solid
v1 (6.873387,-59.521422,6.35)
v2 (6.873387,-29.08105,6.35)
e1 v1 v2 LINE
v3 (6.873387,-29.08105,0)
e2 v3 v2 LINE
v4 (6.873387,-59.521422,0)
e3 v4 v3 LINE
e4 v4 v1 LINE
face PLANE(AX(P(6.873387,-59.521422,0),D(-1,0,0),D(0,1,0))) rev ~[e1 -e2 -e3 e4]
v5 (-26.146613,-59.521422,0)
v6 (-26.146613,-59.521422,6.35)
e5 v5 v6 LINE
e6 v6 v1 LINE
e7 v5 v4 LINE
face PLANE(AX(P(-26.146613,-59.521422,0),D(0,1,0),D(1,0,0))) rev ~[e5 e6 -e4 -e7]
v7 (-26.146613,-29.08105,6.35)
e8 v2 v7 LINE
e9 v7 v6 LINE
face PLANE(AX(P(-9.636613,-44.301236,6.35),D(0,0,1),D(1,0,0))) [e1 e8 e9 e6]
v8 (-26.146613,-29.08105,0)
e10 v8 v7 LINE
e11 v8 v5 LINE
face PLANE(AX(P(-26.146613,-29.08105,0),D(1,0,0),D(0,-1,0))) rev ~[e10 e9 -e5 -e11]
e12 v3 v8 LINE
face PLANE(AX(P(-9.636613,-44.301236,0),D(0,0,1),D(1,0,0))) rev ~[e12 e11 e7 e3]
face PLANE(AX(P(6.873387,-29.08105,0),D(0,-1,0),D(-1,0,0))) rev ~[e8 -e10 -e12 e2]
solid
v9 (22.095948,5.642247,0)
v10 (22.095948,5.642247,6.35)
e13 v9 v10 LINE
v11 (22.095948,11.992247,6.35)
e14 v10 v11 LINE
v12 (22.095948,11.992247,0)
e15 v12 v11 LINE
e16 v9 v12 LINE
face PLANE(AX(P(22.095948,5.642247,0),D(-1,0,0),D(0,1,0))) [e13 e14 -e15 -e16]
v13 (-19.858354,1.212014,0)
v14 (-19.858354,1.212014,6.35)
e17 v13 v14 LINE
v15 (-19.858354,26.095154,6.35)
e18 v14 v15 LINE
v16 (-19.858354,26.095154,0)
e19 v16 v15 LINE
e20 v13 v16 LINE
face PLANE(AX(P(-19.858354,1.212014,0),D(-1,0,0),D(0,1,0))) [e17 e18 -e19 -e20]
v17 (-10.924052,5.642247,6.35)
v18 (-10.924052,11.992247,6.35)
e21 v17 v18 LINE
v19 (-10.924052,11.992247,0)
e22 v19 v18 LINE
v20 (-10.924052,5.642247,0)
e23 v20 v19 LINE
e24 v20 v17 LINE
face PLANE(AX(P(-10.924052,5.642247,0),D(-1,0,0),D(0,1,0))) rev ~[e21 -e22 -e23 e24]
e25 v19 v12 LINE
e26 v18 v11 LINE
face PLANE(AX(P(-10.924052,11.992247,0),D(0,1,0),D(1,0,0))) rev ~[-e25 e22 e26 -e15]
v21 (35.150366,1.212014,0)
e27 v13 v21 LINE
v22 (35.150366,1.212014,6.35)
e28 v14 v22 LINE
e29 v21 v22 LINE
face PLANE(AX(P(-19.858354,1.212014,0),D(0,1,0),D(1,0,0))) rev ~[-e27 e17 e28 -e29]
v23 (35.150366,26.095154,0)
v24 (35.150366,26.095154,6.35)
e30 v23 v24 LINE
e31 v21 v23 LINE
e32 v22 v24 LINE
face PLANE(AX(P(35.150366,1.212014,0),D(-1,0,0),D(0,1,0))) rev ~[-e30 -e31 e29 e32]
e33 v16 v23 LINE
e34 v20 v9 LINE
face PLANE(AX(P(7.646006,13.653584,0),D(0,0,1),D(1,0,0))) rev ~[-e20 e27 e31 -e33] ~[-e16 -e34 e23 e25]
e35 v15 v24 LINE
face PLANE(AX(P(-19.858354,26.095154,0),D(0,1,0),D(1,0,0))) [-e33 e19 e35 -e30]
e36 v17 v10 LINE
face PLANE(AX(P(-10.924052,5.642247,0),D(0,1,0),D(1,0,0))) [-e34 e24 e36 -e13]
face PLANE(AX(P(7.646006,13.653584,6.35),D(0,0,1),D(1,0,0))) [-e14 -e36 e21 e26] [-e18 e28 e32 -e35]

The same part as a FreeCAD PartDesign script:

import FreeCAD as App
import Part
import Sketcher
Q = App.Units.Quantity


def add_polygon(sketch, points):
    """Adds a closed chain of lines whose ends are joined by coincident constraints."""
    first, n = sketch.GeometryCount, len(points)
    for a, b in zip(points, points[1:] + points[:1]):
        sketch.addGeometry(Part.LineSegment(App.Vector(*a, 0), App.Vector(*b, 0)), False)
    for i in range(n):
        sketch.addConstraint(Sketcher.Constraint("Coincident", first + i, 2, first + (i + 1) % n, 1))

doc = App.newDocument("Part")
body = doc.addObject("PartDesign::Body", "Body")
body.AllowCompound = True

# Sketch on XY plane
sketch1 = doc.addObject("Sketcher::SketchObject", "Sketch")
body.addObject(sketch1)
sketch1.AttachmentSupport = (doc.XY_Plane, [""])
sketch1.MapMode = "FlatFace"
add_polygon(sketch1, [(6.873387, -29.08105), (-26.146613, -29.08105), (-26.146613, -59.521422), (6.873387, -59.521422)])  # lines 0-3
add_polygon(sketch1, [(-19.858354, 26.095154), (-19.858354, 1.212014), (35.150366, 1.212014), (35.150366, 26.095154)])  # lines 4-7
add_polygon(sketch1, [(22.095948, 5.642247), (-10.924052, 5.642247), (-10.924052, 11.992247), (22.095948, 11.992247)])  # lines 8-11
sketch1.addConstraint([
    Sketcher.Constraint("Horizontal", 0),
    Sketcher.Constraint("Vertical", 1),
    Sketcher.Constraint("Horizontal", 2),
    Sketcher.Constraint("Vertical", 3),
    Sketcher.Constraint("Vertical", 4),
    Sketcher.Constraint("Horizontal", 5),
    Sketcher.Constraint("Vertical", 6),
    Sketcher.Constraint("Horizontal", 7),
    Sketcher.Constraint("Horizontal", 8),
    Sketcher.Constraint("Vertical", 9),
    Sketcher.Constraint("Horizontal", 10),
    Sketcher.Constraint("Vertical", 11),
    Sketcher.Constraint("Equal", 2, 8),
    Sketcher.Constraint("DistanceX", 0, 2, 0, 1, Q("1.3 in")),
    Sketcher.Constraint("DistanceY", 9, 1, 9, 2, Q("0.25 in")),
    Sketcher.Constraint("DistanceX", 5, 1, 5, 2, 55.00872),
    Sketcher.Constraint("DistanceY", 1, 2, 1, 1, 30.440372),
    Sketcher.Constraint("DistanceY", 4, 2, 4, 1, 24.88314),
    Sketcher.Constraint("DistanceX", 4, 2, 8, 2, 8.934302),
    Sketcher.Constraint("DistanceY", 0, 2, -1, 1, 29.08105),
    Sketcher.Constraint("DistanceX", -1, 1, 10, 2, 22.095948),
    Sketcher.Constraint("DistanceX", 0, 2, 4, 2, 6.288259),
    Sketcher.Constraint("DistanceY", -1, 1, 4, 2, 1.212014),
    Sketcher.Constraint("DistanceY", -1, 1, 8, 2, 5.642247),
])
pad1 = doc.addObject("PartDesign::Pad", "Pad")
body.addObject(pad1)
pad1.Profile = sketch1
pad1.Length = Q("0.25 in")

doc.recompute()
